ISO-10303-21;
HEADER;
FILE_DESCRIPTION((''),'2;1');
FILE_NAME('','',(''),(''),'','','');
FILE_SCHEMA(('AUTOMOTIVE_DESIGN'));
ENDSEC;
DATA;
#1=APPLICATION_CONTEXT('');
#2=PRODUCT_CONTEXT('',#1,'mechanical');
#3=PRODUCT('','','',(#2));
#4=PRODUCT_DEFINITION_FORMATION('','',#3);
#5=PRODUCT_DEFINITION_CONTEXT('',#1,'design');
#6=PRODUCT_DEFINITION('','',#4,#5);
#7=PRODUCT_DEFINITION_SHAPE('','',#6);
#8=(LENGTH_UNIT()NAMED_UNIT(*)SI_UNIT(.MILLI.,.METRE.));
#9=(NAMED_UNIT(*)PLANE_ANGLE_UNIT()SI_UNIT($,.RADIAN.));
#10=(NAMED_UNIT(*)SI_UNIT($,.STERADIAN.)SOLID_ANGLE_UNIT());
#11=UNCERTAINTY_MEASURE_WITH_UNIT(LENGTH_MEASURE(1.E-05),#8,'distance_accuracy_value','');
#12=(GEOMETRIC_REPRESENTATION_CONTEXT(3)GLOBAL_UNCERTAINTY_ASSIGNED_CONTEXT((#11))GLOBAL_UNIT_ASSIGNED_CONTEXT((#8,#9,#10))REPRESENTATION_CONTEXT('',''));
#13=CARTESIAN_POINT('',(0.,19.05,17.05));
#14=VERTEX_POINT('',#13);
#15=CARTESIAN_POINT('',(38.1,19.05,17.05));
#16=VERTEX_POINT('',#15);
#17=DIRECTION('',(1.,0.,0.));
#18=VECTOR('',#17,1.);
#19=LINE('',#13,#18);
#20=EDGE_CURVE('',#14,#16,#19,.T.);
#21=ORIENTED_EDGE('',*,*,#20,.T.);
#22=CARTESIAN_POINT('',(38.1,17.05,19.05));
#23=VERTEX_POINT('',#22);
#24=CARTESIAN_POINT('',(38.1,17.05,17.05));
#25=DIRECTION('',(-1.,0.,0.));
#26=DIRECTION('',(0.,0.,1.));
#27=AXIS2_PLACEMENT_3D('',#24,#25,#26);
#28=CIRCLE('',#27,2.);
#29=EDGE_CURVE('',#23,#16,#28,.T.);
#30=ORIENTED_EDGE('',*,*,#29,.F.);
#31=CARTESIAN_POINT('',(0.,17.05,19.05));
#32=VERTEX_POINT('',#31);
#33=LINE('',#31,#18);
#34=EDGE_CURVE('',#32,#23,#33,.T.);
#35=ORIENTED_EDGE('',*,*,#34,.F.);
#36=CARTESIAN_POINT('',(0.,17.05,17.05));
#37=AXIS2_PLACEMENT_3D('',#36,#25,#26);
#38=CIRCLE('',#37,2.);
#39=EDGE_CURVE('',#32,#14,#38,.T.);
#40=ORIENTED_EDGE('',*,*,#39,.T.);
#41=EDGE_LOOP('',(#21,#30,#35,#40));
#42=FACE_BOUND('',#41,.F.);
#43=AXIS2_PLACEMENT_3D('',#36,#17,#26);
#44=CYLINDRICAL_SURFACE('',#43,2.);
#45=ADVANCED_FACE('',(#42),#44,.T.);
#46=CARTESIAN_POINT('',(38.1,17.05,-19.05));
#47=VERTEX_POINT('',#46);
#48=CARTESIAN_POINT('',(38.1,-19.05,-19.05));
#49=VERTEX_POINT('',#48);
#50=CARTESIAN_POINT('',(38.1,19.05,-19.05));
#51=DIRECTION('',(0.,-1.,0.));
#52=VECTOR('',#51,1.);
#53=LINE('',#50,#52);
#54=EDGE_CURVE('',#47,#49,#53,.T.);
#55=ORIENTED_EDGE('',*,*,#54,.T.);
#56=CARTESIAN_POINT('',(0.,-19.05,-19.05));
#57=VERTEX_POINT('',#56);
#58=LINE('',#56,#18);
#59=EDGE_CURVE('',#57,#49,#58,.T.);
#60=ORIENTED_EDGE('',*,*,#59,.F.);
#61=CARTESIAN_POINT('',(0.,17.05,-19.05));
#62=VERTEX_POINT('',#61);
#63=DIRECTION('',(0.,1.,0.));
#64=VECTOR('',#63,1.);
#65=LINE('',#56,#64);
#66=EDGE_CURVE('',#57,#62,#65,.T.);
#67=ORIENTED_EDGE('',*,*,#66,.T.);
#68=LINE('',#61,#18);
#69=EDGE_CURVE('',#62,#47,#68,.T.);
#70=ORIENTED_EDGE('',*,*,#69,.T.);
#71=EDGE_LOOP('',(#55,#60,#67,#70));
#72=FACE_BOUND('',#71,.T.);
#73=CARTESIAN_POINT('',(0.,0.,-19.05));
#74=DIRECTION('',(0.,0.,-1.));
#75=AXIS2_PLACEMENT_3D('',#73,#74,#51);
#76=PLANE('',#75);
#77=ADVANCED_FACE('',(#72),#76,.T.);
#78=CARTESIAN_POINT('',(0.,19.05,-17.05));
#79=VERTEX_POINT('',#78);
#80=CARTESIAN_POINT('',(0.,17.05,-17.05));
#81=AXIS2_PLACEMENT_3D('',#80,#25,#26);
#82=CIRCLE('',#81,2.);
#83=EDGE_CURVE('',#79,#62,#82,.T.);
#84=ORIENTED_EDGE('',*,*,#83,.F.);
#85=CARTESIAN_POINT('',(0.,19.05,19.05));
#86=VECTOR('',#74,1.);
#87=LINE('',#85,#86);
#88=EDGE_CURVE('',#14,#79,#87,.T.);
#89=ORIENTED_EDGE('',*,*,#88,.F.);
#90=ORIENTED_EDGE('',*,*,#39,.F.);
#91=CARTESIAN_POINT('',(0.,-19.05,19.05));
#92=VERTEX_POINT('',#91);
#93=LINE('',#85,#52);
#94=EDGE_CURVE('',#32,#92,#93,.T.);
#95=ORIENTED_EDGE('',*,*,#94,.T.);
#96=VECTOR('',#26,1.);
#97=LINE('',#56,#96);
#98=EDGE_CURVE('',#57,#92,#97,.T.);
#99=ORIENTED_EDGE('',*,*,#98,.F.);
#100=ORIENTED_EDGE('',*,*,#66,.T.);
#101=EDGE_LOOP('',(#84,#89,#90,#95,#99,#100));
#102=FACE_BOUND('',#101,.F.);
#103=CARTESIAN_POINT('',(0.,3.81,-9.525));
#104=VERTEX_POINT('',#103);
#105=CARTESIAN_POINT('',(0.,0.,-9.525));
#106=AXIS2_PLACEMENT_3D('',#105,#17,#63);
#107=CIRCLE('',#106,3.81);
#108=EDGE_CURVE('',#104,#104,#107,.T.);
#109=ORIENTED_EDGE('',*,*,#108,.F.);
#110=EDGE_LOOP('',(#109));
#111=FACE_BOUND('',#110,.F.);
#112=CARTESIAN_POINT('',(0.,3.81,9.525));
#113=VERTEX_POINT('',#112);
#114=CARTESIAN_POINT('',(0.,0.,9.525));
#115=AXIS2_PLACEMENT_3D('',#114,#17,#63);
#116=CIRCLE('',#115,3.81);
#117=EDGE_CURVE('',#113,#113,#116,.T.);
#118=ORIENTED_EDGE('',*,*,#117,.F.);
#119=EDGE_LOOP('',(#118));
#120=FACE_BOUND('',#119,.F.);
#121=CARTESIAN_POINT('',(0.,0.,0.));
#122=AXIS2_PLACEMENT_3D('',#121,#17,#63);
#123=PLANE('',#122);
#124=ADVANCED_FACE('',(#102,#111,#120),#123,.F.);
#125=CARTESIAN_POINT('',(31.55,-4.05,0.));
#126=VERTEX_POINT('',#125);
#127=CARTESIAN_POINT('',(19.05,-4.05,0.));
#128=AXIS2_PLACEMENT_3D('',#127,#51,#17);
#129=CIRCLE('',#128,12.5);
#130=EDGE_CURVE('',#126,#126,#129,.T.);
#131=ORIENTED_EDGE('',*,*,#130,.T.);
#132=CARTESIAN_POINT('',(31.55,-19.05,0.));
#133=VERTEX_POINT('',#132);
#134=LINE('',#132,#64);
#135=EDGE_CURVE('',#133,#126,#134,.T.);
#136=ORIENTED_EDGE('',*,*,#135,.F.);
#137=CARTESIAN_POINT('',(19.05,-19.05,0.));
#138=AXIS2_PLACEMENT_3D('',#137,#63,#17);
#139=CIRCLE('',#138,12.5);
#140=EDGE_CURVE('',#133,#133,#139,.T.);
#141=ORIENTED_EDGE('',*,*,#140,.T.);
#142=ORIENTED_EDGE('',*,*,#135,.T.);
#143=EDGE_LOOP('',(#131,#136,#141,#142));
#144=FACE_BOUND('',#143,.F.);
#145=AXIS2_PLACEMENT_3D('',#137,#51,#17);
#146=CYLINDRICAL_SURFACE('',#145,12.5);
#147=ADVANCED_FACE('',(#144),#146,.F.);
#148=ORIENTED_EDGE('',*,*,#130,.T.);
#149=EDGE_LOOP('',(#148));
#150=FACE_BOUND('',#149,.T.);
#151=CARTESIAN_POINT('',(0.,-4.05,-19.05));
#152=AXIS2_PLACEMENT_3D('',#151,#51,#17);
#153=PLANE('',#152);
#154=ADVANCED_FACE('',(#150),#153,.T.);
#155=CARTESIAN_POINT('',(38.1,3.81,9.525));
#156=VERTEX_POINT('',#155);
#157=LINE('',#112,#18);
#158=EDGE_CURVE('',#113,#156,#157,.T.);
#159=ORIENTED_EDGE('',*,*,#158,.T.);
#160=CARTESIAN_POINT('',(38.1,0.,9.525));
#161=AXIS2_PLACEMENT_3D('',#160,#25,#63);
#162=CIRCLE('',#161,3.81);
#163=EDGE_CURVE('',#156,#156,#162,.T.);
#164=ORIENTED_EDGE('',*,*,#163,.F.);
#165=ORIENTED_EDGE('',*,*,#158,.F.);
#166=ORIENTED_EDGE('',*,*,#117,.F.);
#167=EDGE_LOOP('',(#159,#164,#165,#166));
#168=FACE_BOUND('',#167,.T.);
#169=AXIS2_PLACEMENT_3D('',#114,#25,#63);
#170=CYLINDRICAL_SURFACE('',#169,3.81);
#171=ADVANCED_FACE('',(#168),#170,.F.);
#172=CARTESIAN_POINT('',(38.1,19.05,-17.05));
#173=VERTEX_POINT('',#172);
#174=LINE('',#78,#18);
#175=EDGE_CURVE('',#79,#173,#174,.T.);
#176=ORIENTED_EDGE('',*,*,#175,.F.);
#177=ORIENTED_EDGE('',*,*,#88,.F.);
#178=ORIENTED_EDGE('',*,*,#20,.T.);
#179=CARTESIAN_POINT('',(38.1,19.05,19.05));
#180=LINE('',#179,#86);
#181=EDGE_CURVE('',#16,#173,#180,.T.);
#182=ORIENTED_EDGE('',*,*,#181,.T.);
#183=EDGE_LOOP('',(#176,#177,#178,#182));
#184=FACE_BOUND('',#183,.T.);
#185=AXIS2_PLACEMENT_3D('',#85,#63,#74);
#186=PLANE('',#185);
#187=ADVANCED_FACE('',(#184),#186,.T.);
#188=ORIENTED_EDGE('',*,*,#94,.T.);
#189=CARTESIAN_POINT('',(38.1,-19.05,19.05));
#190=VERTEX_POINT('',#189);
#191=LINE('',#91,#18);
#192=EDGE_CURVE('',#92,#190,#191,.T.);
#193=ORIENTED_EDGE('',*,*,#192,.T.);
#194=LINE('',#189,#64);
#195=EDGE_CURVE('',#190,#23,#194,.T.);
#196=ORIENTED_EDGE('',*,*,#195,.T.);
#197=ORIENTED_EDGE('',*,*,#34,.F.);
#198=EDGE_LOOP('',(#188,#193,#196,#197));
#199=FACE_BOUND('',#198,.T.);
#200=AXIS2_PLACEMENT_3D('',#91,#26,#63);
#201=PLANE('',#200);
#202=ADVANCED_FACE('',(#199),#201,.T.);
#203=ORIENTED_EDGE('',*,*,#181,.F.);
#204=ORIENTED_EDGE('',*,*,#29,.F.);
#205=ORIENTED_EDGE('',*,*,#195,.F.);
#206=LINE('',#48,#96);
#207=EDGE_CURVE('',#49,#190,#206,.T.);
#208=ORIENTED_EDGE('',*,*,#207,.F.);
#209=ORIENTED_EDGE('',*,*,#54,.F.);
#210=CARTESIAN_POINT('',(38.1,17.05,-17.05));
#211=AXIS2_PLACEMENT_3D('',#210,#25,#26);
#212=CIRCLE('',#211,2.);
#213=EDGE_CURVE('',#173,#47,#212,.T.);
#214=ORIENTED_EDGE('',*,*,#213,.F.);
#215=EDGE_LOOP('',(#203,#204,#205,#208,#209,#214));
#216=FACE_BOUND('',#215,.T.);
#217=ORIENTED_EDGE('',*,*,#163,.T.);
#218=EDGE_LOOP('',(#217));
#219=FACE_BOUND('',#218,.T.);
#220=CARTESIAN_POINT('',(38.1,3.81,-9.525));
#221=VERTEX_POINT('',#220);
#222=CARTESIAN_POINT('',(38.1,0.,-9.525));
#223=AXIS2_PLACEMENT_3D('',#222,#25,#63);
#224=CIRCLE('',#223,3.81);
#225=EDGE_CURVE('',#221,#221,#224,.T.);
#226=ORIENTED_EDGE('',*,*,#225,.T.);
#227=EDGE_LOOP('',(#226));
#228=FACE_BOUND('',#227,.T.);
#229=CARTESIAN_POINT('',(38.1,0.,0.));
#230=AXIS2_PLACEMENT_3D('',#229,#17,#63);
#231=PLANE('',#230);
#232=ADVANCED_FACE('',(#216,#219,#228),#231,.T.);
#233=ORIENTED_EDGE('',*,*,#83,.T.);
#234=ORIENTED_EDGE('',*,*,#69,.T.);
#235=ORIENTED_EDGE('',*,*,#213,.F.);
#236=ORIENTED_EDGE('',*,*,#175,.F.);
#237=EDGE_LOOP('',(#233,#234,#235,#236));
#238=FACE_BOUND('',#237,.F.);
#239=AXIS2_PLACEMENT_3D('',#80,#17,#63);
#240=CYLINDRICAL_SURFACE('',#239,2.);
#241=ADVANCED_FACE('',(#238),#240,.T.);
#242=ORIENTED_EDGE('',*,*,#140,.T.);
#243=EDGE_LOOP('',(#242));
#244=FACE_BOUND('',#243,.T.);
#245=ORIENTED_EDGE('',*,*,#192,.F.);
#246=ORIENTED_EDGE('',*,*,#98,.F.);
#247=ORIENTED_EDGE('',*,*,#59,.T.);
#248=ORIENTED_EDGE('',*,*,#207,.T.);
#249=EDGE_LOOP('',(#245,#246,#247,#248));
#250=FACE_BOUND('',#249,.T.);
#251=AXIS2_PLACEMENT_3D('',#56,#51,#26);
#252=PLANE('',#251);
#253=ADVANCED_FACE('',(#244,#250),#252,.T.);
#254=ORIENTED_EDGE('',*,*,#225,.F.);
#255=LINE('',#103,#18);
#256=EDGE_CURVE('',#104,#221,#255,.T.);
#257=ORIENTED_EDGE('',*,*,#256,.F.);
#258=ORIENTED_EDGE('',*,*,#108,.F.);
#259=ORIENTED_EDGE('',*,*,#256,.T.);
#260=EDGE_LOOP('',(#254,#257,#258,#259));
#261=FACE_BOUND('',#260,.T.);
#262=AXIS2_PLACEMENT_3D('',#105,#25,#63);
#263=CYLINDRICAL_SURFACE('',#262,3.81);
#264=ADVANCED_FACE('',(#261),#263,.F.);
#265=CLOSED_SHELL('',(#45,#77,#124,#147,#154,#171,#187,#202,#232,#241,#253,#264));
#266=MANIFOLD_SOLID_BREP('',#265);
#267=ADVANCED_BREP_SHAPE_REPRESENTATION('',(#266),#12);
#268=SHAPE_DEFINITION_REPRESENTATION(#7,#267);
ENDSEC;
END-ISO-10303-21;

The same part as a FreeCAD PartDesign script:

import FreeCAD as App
import Part
import Sketcher

V = App.Vector


def edges_at(feature, points):
    """Names of the edges that pass closest to the given points."""
    edges = feature.Shape.Edges
    near = lambda p: min(range(len(edges)), key=lambda i: edges[i].distToShape(Part.Vertex(*p))[0])
    return sorted({f"Edge{near(p) + 1}" for p in points})

doc = App.newDocument("Part")
body = doc.addObject("PartDesign::Body", "Body")

# Sketch on YZ plane
sketch1 = doc.addObject("Sketcher::SketchObject", "Sketch")
body.addObject(sketch1)
sketch1.AttachmentSupport = (doc.YZ_Plane, [""])
sketch1.MapMode = "FlatFace"
sketch1.addGeometry([
    Part.LineSegment(V(-19.1, 19.1, 0), V(-19.1, -19.1, 0)),  # 0
    Part.LineSegment(V(-19.1, -19.1, 0), V(19.1, -19.1, 0)),  # 1
    Part.LineSegment(V(19.1, -19.1, 0), V(19.1, 19.1, 0)),  # 2
    Part.LineSegment(V(19.1, 19.1, 0), V(-19.1, 19.1, 0)),  # 3
    Part.Circle(V(0, 9.5, 0), V(0, 0, 1), 3.8),  # 4
    Part.Circle(V(0, -9.5, 0), V(0, 0, 1), 3.8),  # 5
], False)
sketch1.addConstraint([
    Sketcher.Constraint("Coincident", 0, 2, 1, 1),
    Sketcher.Constraint("Coincident", 1, 2, 2, 1),
    Sketcher.Constraint("Coincident", 2, 2, 3, 1),
    Sketcher.Constraint("Coincident", 3, 2, 0, 1),
    Sketcher.Constraint("Vertical", 0),
    Sketcher.Constraint("Horizontal", 1),
    Sketcher.Constraint("Vertical", 2),
    Sketcher.Constraint("Horizontal", 3),
    Sketcher.Constraint("Equal", 4, 5),
    Sketcher.Constraint("Symmetric", 4, 3, 5, 3, -1, 1),
    Sketcher.Constraint("Symmetric", 0, 2, 2, 2, -1, 1),
    Sketcher.Constraint("PointOnObject", 4, 3, -2),
    Sketcher.Constraint("Equal", 3, 0),
    Sketcher.Constraint("Diameter", 4, 7.62),
    Sketcher.Constraint("DistanceX", 1, 1, 1, 2, 38.1),
    Sketcher.Constraint("DistanceY", 5, 3, 4, 3, 19.05),
])
pad1 = doc.addObject("PartDesign::Pad", "Pad")
body.addObject(pad1)
pad1.Profile = sketch1
pad1.Length = 38.1

# Sketch on XZ plane
sketch2 = doc.addObject("Sketcher::SketchObject", "Sketch001")
body.addObject(sketch2)
sketch2.AttachmentSupport = (doc.XZ_Plane, [""])
sketch2.MapMode = "FlatFace"
sketch2.AttachmentOffset = App.Placement(V(0, 0, 19.05), App.Rotation())
sketch2.addGeometry(Part.Circle(V(19, 0, 0), V(0, 0, 1), 12), False)
sketch2.addConstraint([
    Sketcher.Constraint("PointOnObject", 0, 3, -1),
    Sketcher.Constraint("Diameter", 0, 25.0),
    Sketcher.Constraint("DistanceX", -1, 1, 0, 3, 19.05),
])
pocket1 = doc.addObject("PartDesign::Pocket", "Pocket")
body.addObject(pocket1)
pocket1.Profile = sketch2
pocket1.Length = 15
doc.recompute()

fillet = doc.addObject("PartDesign::Fillet", "Fillet")
body.addObject(fillet)
fillet.Base = (pocket1, edges_at(pocket1, [(19.05, 19.05, 19.05)]))
fillet.Radius = 2
doc.recompute()

fillet2 = doc.addObject("PartDesign::Fillet", "Fillet001")
body.addObject(fillet2)
fillet2.Base = (fillet, edges_at(fillet, [(19.05, 19.05, -19.05)]))
fillet2.Radius = 2

doc.recompute()
